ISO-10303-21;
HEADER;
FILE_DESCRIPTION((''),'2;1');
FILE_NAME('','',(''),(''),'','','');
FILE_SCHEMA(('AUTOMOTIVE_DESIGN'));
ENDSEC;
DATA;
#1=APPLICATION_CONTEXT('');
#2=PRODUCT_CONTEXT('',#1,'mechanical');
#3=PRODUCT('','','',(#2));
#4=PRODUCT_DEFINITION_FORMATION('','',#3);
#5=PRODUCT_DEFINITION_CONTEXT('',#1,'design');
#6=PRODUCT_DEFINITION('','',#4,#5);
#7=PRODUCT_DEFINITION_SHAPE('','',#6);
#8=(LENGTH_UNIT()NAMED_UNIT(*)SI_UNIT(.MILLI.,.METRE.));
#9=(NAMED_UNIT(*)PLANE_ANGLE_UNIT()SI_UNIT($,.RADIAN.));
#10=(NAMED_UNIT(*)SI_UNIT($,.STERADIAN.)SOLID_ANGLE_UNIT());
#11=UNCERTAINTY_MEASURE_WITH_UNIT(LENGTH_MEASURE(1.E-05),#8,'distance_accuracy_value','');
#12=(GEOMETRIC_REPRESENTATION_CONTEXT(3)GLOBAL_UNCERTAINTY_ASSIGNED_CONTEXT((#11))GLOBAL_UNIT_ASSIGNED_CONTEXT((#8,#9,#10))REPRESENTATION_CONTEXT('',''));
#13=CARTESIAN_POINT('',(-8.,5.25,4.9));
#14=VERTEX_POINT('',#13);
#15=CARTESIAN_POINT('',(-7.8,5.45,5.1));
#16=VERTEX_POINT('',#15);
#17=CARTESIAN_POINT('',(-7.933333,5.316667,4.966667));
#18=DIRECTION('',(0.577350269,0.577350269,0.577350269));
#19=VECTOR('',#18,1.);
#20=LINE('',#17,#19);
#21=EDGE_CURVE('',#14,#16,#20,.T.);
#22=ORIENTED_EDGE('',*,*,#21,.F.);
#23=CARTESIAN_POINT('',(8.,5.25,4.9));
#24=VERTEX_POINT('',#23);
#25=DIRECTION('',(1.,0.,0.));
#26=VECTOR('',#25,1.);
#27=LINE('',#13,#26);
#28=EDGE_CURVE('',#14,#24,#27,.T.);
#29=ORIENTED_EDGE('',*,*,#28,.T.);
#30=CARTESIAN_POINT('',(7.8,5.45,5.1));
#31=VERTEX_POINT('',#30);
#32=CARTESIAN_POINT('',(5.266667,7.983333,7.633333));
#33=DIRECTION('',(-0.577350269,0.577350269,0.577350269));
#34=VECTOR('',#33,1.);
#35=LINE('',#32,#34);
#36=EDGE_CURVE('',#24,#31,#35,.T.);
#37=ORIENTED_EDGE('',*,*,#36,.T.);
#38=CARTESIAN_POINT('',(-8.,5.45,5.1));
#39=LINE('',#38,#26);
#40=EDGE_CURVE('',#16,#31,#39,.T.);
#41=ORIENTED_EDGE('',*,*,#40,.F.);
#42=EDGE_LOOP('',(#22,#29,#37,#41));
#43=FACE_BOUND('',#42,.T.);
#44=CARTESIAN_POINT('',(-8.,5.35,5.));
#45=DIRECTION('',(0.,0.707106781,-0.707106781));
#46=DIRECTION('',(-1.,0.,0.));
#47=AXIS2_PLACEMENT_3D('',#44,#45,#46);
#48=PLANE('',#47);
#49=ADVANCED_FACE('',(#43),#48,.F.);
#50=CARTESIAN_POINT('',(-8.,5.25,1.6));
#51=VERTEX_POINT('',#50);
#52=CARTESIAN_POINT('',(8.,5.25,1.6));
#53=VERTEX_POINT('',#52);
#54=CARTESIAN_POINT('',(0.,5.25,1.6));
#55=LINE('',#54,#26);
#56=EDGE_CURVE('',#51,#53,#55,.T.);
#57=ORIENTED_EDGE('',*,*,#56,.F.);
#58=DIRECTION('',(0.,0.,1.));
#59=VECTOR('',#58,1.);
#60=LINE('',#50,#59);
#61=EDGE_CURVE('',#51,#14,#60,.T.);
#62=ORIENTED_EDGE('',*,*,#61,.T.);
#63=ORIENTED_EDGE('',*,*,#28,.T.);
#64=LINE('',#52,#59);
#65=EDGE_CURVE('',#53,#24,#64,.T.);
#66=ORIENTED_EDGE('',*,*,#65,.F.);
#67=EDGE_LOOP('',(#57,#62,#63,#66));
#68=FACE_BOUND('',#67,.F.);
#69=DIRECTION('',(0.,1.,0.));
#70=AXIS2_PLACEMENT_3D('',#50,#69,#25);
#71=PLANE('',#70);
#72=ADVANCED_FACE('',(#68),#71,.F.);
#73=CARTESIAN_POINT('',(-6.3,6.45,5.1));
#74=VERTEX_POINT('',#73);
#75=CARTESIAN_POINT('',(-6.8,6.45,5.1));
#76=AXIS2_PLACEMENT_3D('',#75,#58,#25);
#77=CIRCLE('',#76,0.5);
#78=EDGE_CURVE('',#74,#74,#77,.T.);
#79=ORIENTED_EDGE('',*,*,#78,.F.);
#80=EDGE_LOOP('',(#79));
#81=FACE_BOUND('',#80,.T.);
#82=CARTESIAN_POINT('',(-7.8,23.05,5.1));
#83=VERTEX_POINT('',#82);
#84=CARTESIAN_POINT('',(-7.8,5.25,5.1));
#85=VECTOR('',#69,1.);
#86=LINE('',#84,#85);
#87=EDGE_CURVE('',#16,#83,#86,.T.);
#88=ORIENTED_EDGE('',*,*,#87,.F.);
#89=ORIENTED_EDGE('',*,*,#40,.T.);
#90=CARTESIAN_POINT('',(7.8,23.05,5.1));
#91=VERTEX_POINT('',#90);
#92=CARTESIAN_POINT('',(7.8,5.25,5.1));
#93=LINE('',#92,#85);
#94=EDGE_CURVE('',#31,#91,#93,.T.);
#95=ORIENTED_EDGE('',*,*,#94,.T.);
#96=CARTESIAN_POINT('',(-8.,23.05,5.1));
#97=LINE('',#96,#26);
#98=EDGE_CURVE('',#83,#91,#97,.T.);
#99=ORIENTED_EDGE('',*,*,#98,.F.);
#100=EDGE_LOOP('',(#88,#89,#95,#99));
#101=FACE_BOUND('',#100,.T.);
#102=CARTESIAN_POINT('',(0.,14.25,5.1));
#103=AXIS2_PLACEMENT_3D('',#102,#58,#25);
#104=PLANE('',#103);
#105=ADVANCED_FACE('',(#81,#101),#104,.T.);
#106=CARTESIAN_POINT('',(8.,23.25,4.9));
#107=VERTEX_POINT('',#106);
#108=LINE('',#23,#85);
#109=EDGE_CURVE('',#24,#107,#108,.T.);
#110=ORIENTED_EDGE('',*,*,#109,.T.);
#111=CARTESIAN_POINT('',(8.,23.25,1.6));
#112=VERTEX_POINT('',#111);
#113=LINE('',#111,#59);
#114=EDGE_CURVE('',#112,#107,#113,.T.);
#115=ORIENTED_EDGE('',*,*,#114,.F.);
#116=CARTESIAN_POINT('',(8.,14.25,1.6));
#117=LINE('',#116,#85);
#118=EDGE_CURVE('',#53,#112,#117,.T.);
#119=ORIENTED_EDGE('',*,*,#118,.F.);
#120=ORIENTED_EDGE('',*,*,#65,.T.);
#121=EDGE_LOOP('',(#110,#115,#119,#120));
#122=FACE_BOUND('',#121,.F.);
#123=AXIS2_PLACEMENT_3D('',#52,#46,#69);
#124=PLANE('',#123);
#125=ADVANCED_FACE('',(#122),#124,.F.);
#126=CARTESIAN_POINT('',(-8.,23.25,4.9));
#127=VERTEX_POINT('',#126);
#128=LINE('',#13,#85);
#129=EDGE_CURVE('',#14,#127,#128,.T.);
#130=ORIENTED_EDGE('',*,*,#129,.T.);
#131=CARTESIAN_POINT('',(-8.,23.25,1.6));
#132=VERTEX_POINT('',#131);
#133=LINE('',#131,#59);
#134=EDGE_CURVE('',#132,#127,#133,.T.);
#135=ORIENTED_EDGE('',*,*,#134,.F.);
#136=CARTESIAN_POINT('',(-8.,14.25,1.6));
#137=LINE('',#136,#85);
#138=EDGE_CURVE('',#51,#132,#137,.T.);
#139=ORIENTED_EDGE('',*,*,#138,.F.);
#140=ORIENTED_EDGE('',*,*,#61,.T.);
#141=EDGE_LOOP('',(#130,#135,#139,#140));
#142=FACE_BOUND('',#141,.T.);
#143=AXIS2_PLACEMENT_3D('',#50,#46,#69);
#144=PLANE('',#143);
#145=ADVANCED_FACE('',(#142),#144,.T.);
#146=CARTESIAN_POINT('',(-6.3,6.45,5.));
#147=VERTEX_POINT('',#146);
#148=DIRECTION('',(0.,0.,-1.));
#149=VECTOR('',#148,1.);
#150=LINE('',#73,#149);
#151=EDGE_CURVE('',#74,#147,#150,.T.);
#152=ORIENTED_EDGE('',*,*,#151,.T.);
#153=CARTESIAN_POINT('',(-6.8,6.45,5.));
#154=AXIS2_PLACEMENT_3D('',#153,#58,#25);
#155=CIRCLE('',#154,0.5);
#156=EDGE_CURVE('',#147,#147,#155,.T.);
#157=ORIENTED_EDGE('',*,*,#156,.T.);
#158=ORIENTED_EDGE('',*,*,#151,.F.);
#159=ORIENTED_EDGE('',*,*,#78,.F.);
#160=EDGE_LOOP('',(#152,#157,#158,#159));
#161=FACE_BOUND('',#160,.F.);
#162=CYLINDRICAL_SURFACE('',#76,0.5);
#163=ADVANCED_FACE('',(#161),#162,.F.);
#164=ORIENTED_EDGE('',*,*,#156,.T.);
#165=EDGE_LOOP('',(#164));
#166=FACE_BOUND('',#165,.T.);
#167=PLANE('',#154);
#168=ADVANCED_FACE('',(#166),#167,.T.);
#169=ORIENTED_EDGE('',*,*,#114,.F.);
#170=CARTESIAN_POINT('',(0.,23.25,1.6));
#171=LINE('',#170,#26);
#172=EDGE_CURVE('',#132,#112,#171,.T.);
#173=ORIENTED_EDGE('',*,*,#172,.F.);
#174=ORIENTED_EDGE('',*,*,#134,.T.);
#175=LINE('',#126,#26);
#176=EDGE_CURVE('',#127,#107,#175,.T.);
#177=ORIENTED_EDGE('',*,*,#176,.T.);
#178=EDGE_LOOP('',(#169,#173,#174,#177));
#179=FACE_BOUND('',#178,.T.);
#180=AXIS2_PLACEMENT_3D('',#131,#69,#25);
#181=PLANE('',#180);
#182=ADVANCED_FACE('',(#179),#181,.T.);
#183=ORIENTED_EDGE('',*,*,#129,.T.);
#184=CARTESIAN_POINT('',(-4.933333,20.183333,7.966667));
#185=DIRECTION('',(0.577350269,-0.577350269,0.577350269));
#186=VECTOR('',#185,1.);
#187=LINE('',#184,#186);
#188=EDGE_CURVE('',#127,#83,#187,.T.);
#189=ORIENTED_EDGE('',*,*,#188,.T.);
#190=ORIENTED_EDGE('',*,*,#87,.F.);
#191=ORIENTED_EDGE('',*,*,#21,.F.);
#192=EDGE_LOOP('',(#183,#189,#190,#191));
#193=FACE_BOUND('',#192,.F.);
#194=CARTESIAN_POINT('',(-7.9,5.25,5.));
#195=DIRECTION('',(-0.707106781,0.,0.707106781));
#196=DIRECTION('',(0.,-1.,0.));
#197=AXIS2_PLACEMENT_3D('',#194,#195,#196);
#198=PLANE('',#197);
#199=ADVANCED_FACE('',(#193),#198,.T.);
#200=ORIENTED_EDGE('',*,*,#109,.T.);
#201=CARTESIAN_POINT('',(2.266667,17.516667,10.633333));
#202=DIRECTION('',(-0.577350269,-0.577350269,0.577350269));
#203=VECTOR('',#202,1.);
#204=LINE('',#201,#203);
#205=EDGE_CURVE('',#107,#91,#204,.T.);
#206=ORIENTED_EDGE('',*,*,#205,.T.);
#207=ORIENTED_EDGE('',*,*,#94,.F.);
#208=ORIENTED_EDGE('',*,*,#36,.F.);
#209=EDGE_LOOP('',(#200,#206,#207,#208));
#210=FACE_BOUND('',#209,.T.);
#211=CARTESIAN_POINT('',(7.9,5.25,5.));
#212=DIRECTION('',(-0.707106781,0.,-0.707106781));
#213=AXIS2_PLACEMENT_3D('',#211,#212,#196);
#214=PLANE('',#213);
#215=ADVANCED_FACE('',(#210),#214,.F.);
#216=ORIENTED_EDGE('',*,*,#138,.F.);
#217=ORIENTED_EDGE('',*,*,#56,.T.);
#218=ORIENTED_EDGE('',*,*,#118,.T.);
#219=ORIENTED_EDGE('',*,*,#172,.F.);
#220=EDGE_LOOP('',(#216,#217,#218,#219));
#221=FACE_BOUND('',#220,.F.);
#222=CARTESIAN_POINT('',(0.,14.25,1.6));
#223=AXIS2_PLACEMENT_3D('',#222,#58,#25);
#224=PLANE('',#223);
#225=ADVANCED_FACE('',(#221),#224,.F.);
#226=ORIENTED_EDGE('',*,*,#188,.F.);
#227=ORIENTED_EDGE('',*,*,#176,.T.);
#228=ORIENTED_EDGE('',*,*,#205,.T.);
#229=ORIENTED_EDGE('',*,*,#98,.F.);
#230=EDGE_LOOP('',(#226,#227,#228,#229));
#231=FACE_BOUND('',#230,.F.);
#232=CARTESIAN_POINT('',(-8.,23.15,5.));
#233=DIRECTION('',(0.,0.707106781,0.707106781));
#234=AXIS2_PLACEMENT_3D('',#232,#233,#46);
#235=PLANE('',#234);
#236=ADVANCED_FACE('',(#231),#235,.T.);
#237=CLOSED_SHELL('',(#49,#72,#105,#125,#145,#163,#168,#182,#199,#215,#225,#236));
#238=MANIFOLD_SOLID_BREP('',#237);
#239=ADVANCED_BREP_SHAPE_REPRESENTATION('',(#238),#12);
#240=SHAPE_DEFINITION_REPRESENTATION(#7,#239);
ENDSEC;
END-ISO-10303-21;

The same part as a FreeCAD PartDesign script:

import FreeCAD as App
import Part
import Sketcher
from FreeCAD import Vector


def edges_at(feature, points):
    """Names of the edges that pass closest to the given points."""
    edges = feature.Shape.Edges
    near = lambda p: min(range(len(edges)), key=lambda i: edges[i].distToShape(Part.Vertex(*p))[0])
    return sorted({f"Edge{near(p) + 1}" for p in points})

doc = App.newDocument("Part")
params = doc.addObject("Spreadsheet::Sheet", "Params")
for row, (alias, value) in enumerate([
    ("sketch1_width", "16 mm"),
    ("sketch1_height", "18 mm"),
    ("pad1_length", "3.5 mm"),
    ("chamfer_size", "0.2 mm"),
    ("sketch2_diameter", "1 mm"),
    ("pocket1_length", "0.1 mm"),
], start=1):
    params.set(f"A{row}", alias)
    params.set(f"B{row}", "=" + value)
    params.setAlias(f"B{row}", alias)

body = doc.addObject("PartDesign::Body", "Body")

# Sketch on XY plane
sketch1 = doc.addObject("Sketcher::SketchObject", "Sketch")
body.addObject(sketch1)
sketch1.AttachmentSupport = (doc.XY_Plane, [""])
sketch1.MapMode = "FlatFace"
sketch1.AttachmentOffset = App.Placement(Vector(0, 0, 1.6), App.Rotation())
sketch1.addGeometry([
    Part.LineSegment(Vector(-8, 23, 0), Vector(-8, 5, 0)),
    Part.LineSegment(Vector(-8, 5, 0), Vector(8, 5, 0)),
    Part.LineSegment(Vector(8, 5, 0), Vector(8, 23, 0)),
    Part.LineSegment(Vector(8, 23, 0), Vector(-8, 23, 0)),
], False)
sketch1.addConstraint([
    Sketcher.Constraint("Coincident", 0, 2, 1, 1),
    Sketcher.Constraint("Coincident", 1, 2, 2, 1),
    Sketcher.Constraint("Coincident", 2, 2, 3, 1),
    Sketcher.Constraint("Coincident", 3, 2, 0, 1),
    Sketcher.Constraint("Vertical", 0),
    Sketcher.Constraint("Horizontal", 1),
    Sketcher.Constraint("Vertical", 2),
    Sketcher.Constraint("Horizontal", 3),
    Sketcher.Constraint("DistanceX", 1, 1, 1, 2, 16.0),
    Sketcher.Constraint("DistanceY", 0, 2, 0, 1, 18.0),
    Sketcher.Constraint("DistanceX", 0, 2, -1, 1, 8.0),
    Sketcher.Constraint("DistanceY", -1, 1, 0, 2, 5.25),
])
sketch1.setExpression("Constraints[8]", "Params.sketch1_width")
sketch1.setExpression("Constraints[9]", "Params.sketch1_height")
pad1 = doc.addObject("PartDesign::Pad", "Pad")
body.addObject(pad1)
pad1.Profile = sketch1
pad1.setExpression("Length", "Params.pad1_length")
doc.recompute()

chamfer = doc.addObject("PartDesign::Chamfer", "Chamfer")
body.addObject(chamfer)
chamfer.Base = (pad1, edges_at(pad1, [
    (0, 23.25, 5.1),
    (8, 14.25, 5.1),
    (0, 5.25, 5.1),
    (-8, 14.25, 5.1),
]))
chamfer.setExpression("Size", "Params.chamfer_size")

# Sketch on XY plane
sketch2 = doc.addObject("Sketcher::SketchObject", "Sketch001")
body.addObject(sketch2)
sketch2.AttachmentSupport = (doc.XY_Plane, [""])
sketch2.MapMode = "FlatFace"
sketch2.AttachmentOffset = App.Placement(Vector(0, 0, 5.1), App.Rotation())
sketch2.addGeometry(Part.Circle(Vector(-6.8, 6.5, 0), Vector(0, 0, 1), 0.5), False)
sketch2.addConstraint([
    Sketcher.Constraint("Diameter", 0, 1.0),
    Sketcher.Constraint("DistanceX", 0, 3, -1, 1, 6.8),
    Sketcher.Constraint("DistanceY", -1, 1, 0, 3, 6.45),
])
sketch2.setExpression("Constraints[0]", "Params.sketch2_diameter")
pocket1 = doc.addObject("PartDesign::Pocket", "Pocket")
body.addObject(pocket1)
pocket1.Profile = sketch2
pocket1.setExpression("Length", "Params.pocket1_length")

doc.recompute()
